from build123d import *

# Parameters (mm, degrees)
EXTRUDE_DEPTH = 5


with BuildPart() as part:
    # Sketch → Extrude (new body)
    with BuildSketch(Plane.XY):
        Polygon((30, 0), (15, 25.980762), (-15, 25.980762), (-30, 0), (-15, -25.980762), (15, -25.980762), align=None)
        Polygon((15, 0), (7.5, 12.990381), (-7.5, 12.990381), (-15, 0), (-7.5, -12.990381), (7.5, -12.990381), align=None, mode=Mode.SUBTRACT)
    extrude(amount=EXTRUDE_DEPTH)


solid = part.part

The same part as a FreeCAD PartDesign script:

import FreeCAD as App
import Part
import Sketcher
from FreeCAD import Vector
Q = App.Units.Quantity


def add_polygon(sketch, points):
    """Adds a closed chain of lines whose ends are joined by coincident constraints."""
    first, n = sketch.GeometryCount, len(points)
    for a, b in zip(points, points[1:] + points[:1]):
        sketch.addGeometry(Part.LineSegment(App.Vector(*a, 0), App.Vector(*b, 0)), False)
    for i in range(n):
        sketch.addConstraint(Sketcher.Constraint("Coincident", first + i, 2, first + (i + 1) % n, 1))

doc = App.newDocument("Part")
body = doc.addObject("PartDesign::Body", "Body")

# Sketch on XY plane
sketch1 = body.newObject("Sketcher::SketchObject", "Sketch")
sketch1.AttachmentSupport = (doc.getObject("XY_Plane"), [""])
sketch1.MapMode = "FlatFace"
add_polygon(sketch1, [(30, 0), (15, 26), (-15, 26), (-30, 0), (-15, -26), (15, -26)])  # lines 0-5
add_polygon(sketch1, [(8, 13), (15, 0), (8, -13), (-8, -13), (-15, 0), (-8, 13)])  # lines 6-11
sketch1.addConstraint([
    Sketcher.Constraint("Horizontal", 1),
    Sketcher.Constraint("Horizontal", 4),
    Sketcher.Constraint("Horizontal", 8),
    Sketcher.Constraint("Horizontal", 11),
    Sketcher.Constraint("Symmetric", 0, 2, 3, 2, -1, 1),
    Sketcher.Constraint("Symmetric", 2, 2, 5, 2, -1, 1),
    Sketcher.Constraint("Symmetric", 6, 2, 9, 2, -1, 1),
    Sketcher.Constraint("Symmetric", 7, 2, 10, 2, -1, 1),
    Sketcher.Constraint("PointOnObject", 2, 2, -1),
    Sketcher.Constraint("PointOnObject", 6, 2, -1),
    Sketcher.Constraint("Parallel", 2, 5),
    Sketcher.Constraint("Parallel", 3, 6),
    Sketcher.Constraint("Parallel", 5, 7),
    Sketcher.Constraint("Parallel", 6, 9),
    Sketcher.Constraint("Vertical", 1, 2, 3, 2),
    Sketcher.Constraint("Vertical", 4, 2, 6, 2),
    Sketcher.Constraint("DistanceX", 1, 2, 1, 1, Q("30 mm")),
    Sketcher.Constraint("DistanceX", 8, 2, 8, 1, Q("15 mm")),
    Sketcher.Constraint("Angle", 0, Q("120 deg")),
    Sketcher.Constraint("Distance", 0, Q("30 mm")),
])
pad1 = body.newObject("PartDesign::Pad", "Pad")
pad1.Profile = sketch1
pad1.Length = 5

doc.recompute()
